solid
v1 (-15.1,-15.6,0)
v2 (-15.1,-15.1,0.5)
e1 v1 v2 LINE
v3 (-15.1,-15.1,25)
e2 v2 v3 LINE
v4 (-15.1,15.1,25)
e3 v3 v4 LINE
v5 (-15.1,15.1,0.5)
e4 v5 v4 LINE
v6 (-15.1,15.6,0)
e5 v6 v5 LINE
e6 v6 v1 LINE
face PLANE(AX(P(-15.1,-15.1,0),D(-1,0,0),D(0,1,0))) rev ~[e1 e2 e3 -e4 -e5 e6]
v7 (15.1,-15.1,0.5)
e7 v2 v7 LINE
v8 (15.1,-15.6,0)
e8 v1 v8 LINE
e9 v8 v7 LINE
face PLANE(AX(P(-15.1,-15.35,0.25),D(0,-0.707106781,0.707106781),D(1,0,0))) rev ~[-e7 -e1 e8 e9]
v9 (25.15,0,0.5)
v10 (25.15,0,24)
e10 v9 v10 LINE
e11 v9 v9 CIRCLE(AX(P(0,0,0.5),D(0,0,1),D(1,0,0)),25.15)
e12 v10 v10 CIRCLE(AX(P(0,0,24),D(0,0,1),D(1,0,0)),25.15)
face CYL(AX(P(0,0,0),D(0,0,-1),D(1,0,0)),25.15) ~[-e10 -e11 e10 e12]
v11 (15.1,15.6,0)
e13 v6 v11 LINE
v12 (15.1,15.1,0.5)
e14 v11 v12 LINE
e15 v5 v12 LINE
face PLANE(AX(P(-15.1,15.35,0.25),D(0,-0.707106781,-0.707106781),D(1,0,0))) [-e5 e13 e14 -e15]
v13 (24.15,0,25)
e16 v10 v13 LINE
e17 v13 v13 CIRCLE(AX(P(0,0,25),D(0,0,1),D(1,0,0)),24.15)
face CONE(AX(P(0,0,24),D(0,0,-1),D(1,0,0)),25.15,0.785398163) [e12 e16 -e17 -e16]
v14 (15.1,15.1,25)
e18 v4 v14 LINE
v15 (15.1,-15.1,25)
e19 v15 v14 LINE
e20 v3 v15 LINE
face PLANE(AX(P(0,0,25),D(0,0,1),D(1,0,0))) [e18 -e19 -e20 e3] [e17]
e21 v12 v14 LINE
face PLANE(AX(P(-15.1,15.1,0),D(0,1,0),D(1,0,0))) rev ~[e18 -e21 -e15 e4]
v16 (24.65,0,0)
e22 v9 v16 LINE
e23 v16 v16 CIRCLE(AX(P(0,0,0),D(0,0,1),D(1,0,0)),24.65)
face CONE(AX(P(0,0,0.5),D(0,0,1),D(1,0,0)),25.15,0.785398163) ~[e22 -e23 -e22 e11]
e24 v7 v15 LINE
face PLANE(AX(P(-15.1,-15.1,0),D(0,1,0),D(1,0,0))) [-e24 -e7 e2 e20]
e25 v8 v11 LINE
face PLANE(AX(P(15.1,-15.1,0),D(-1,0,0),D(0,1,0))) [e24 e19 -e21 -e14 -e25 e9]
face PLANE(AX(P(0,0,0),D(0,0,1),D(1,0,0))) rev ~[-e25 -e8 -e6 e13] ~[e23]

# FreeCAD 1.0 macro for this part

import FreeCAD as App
import Part
import Sketcher

V = App.Vector
Q = App.Units.Quantity


def edges_at(feature, points):
    """Names of the edges that pass closest to the given points."""
    edges = feature.Shape.Edges
    near = lambda p: min(range(len(edges)), key=lambda i: edges[i].distToShape(Part.Vertex(*p))[0])
    return sorted({f"Edge{near(p) + 1}" for p in points})


def add_polygon(sketch, points):
    """Adds a closed chain of lines whose ends are joined by coincident constraints."""
    first, n = sketch.GeometryCount, len(points)
    for a, b in zip(points, points[1:] + points[:1]):
        sketch.addGeometry(Part.LineSegment(App.Vector(*a, 0), App.Vector(*b, 0)), False)
    for i in range(n):
        sketch.addConstraint(Sketcher.Constraint("Coincident", first + i, 2, first + (i + 1) % n, 1))

doc = App.newDocument("Part")
body = doc.addObject("PartDesign::Body", "Body")

sketch1 = body.newObject("Sketcher::SketchObject", "Sketch")
sketch1.AttachmentSupport = (doc.getObject("XY_Plane"), [""])
sketch1.MapMode = "FlatFace"
add_polygon(sketch1, [(-15, 15), (-15, -15), (15, -15), (15, 15)])
sketch1.addConstraint([
    Sketcher.Constraint("Vertical", 0),
    Sketcher.Constraint("Horizontal", 1),
    Sketcher.Constraint("Vertical", 2),
    Sketcher.Constraint("Horizontal", 3),
    Sketcher.Constraint("Symmetric", 0, 2, 2, 2, -1, 1),
    Sketcher.Constraint("Equal", 3, 0),
    Sketcher.Constraint("DistanceX", 1, 1, 1, 2, Q("30.2 mm")),
])
pad1 = body.newObject("PartDesign::Pad", "Pad")
pad1.Profile = sketch1
pad1.Length = 25
body2 = doc.addObject("PartDesign::Body", "Body001")

sketch2 = body2.newObject("Sketcher::SketchObject", "Sketch001")
sketch2.AttachmentSupport = (doc.getObject("XY_Plane001"), [""])
sketch2.MapMode = "FlatFace"
sketch2.addGeometry(Part.Circle(V(0, 0, 0), V(0, 0, 1), 25), False)
sketch2.addConstraint([
    Sketcher.Constraint("Coincident", 0, 3, -1, 1),
    Sketcher.Constraint("Diameter", 0, Q("50.3 mm")),
])
pad2 = body2.newObject("PartDesign::Pad", "Pad001")
pad2.Profile = sketch2
pad2.Length = 25
doc.recompute()

boolean = body2.newObject("PartDesign::Boolean", "Boolean")
boolean.Type = "Cut"
boolean.addObjects([body])
doc.recompute()

chamfer = body2.newObject("PartDesign::Chamfer", "Chamfer")
chamfer.Base = (boolean, edges_at(boolean, [(0, -15.1, 0), (0, 15.1, 0)]))
chamfer.Size = 0.5
doc.recompute()

chamfer2 = body2.newObject("PartDesign::Chamfer", "Chamfer001")
chamfer2.Base = (chamfer, edges_at(chamfer, [(-25.15, 0, 25)]))
chamfer2.Size = 1
doc.recompute()

chamfer3 = body2.newObject("PartDesign::Chamfer", "Chamfer002")
chamfer3.Base = (chamfer2, edges_at(chamfer2, [(-25.15, 0, 0)]))
chamfer3.Size = 0.5

doc.recompute()
